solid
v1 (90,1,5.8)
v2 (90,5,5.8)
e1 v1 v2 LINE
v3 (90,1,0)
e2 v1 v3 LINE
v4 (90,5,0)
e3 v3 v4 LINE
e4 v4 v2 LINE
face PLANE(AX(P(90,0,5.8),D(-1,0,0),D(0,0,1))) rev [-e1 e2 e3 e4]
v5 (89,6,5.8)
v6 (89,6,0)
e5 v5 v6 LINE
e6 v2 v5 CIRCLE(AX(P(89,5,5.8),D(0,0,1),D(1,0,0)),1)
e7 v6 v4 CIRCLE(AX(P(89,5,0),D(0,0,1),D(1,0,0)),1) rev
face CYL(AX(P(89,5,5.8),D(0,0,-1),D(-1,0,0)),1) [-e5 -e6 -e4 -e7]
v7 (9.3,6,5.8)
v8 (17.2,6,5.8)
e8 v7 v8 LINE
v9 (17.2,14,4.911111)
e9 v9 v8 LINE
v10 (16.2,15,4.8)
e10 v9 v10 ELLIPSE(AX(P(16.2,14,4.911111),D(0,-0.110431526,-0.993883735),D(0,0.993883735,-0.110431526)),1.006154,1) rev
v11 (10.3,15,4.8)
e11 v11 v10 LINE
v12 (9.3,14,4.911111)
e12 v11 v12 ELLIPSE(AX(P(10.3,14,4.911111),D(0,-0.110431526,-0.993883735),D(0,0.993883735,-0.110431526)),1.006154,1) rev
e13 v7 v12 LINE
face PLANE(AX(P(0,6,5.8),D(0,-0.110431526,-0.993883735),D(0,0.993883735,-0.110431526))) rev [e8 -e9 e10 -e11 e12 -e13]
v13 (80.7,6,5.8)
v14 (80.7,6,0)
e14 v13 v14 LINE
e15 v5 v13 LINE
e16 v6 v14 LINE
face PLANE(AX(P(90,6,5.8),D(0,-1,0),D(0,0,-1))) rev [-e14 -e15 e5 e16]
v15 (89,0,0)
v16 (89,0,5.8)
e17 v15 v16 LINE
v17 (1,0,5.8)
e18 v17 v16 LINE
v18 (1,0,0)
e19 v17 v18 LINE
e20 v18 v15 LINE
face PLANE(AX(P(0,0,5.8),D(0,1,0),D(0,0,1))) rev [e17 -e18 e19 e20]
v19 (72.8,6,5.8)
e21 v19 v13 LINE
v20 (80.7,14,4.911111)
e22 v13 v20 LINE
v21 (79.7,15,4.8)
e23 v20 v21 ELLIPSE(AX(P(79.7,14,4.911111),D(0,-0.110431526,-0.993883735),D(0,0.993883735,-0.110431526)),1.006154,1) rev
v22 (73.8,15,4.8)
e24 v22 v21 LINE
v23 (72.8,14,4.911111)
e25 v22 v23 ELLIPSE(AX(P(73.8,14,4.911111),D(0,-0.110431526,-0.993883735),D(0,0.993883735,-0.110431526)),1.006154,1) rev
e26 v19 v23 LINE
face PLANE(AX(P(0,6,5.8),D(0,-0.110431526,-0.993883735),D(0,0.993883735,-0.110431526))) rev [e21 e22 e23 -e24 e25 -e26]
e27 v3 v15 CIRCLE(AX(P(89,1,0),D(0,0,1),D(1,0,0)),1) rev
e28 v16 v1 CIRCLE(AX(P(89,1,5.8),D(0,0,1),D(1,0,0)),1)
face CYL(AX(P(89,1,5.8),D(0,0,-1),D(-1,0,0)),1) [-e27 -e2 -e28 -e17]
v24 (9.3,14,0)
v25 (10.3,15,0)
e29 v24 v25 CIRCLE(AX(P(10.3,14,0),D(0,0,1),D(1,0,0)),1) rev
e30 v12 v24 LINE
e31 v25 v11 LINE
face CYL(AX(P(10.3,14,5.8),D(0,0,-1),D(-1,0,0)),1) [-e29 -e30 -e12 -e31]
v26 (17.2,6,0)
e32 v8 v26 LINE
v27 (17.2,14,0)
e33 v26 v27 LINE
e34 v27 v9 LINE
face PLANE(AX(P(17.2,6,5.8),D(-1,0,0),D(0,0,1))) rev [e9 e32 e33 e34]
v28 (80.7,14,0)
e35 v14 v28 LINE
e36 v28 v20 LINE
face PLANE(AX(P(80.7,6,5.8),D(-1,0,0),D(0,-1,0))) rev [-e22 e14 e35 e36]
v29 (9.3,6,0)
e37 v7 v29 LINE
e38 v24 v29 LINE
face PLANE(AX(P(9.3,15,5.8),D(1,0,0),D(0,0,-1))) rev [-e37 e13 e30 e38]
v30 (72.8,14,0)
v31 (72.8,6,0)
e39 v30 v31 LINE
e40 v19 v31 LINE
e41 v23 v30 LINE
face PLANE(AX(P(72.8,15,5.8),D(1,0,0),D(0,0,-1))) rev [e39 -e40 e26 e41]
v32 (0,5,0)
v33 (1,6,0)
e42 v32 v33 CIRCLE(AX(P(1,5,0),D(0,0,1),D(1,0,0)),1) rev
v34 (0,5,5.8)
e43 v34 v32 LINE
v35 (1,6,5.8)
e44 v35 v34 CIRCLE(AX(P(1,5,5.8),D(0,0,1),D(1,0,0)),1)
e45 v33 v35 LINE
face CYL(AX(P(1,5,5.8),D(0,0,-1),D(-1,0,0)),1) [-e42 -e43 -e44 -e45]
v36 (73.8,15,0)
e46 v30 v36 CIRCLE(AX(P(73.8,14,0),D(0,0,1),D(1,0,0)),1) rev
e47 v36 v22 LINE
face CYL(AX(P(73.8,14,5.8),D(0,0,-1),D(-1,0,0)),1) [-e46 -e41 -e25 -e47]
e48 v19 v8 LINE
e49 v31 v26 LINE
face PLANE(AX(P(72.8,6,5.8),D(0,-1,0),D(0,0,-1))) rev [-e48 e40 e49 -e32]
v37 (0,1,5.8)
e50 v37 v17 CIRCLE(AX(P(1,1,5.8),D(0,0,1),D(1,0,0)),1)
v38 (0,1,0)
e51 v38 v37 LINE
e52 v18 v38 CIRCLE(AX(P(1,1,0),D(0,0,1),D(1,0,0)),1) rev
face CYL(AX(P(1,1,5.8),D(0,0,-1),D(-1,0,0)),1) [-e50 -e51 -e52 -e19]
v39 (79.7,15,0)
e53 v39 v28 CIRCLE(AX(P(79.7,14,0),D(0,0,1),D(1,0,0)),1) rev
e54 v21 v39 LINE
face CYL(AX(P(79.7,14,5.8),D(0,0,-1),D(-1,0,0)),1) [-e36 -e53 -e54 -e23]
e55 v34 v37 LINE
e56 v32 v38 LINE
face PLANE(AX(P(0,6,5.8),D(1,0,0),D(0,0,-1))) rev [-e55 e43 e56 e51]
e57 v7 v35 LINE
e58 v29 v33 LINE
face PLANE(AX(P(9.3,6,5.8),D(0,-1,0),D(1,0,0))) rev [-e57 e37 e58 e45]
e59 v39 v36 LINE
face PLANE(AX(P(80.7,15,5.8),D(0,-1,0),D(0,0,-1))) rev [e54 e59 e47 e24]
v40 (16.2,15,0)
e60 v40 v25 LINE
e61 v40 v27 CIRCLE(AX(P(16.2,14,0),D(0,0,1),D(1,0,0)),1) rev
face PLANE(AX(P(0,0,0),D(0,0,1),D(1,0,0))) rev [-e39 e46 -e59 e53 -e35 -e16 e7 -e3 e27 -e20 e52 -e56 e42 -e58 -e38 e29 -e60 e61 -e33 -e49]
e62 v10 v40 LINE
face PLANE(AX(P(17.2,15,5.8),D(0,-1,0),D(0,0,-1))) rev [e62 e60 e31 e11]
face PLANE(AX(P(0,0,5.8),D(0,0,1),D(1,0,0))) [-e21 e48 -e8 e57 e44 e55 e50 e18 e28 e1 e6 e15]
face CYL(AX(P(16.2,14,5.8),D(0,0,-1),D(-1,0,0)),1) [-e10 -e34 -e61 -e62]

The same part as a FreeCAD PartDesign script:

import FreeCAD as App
import Part
import Sketcher

V = App.Vector
Q = App.Units.Quantity


def edges_at(feature, points):
    """Names of the edges that pass closest to the given points."""
    edges = feature.Shape.Edges
    near = lambda p: min(range(len(edges)), key=lambda i: edges[i].distToShape(Part.Vertex(*p))[0])
    return sorted({f"Edge{near(p) + 1}" for p in points})


def add_polygon(sketch, points):
    """Adds a closed chain of lines whose ends are joined by coincident constraints."""
    first, n = sketch.GeometryCount, len(points)
    for a, b in zip(points, points[1:] + points[:1]):
        sketch.addGeometry(Part.LineSegment(App.Vector(*a, 0), App.Vector(*b, 0)), False)
    for i in range(n):
        sketch.addConstraint(Sketcher.Constraint("Coincident", first + i, 2, first + (i + 1) % n, 1))

doc = App.newDocument("Part")
body = doc.addObject("PartDesign::Body", "Body")

sketch1 = body.newObject("Sketcher::SketchObject", "Sketch")
sketch1.AttachmentSupport = (doc.getObject("XY_Plane"), [""])
sketch1.MapMode = "FlatFace"
add_polygon(sketch1, [(0, 0), (90, 0), (90, 6), (81, 6), (81, 15), (73, 15), (73, 6), (17, 6), (17, 15), (9, 15), (9, 6), (0, 6)])
sketch1.addConstraint([
    Sketcher.Constraint("Horizontal", 0),
    Sketcher.Constraint("Vertical", 1),
    Sketcher.Constraint("Horizontal", 2),
    Sketcher.Constraint("Vertical", 3),
    Sketcher.Constraint("Horizontal", 4),
    Sketcher.Constraint("Vertical", 5),
    Sketcher.Constraint("Horizontal", 6),
    Sketcher.Constraint("Vertical", 7),
    Sketcher.Constraint("Horizontal", 8),
    Sketcher.Constraint("Vertical", 9),
    Sketcher.Constraint("Horizontal", 10),
    Sketcher.Constraint("Vertical", 11),
    Sketcher.Constraint("Coincident", 11, 2, -1, 1),
    Sketcher.Constraint("Horizontal", 2, 2, 5, 2),
    Sketcher.Constraint("Horizontal", 4, 2, 7, 2),
    Sketcher.Constraint("Horizontal", 6, 2, 9, 2),
    Sketcher.Constraint("Equal", 4, 8),
    Sketcher.Constraint("Equal", 2, 10),
    Sketcher.Constraint("DistanceX", 0, 1, 0, 2, Q("90 mm")),
    Sketcher.Constraint("DistanceY", 1, 1, 1, 2, Q("6 mm")),
    Sketcher.Constraint("DistanceY", 3, 1, 3, 2, Q("9 mm")),
    Sketcher.Constraint("DistanceX", 2, 2, 2, 1, Q("9.3 mm")),
    Sketcher.Constraint("DistanceX", 4, 2, 4, 1, Q("7.9 mm")),
])
pad1 = body.newObject("PartDesign::Pad", "Pad")
pad1.Profile = sketch1
pad1.Length = 5.8

sketch2 = body.newObject("Sketcher::SketchObject", "Sketch001")
sketch2.AttachmentSupport = (doc.getObject("YZ_Plane"), [""])
sketch2.MapMode = "FlatFace"
sketch2.AttachmentOffset = App.Placement(V(0, 0, 80.7), App.Rotation())
add_polygon(sketch2, [(15, 5.8), (6, 5.8), (15, 4.8)])
sketch2.addConstraint([
    Sketcher.Constraint("Horizontal", 0),
    Sketcher.Constraint("Vertical", 2),
    Sketcher.Constraint("DistanceX", 0, 2, 0, 1, Q("9 mm")),
    Sketcher.Constraint("DistanceY", 2, 1, 2, 2, Q("1 mm")),
    Sketcher.Constraint("DistanceX", -1, 1, 0, 2, Q("6 mm")),
    Sketcher.Constraint("DistanceY", -1, 1, 0, 2, Q("5.8 mm")),
])
pocket1 = body.newObject("PartDesign::Pocket", "Pocket")
pocket1.Profile = sketch2
pocket1.Type = "ThroughAll"
doc.recompute()

fillet = body.newObject("PartDesign::Fillet", "Fillet")
fillet.Base = (pocket1, edges_at(pocket1, [
    (0, 6, 2.9),
    (90, 6, 2.9),
    (90, 0, 2.9),
    (0, 0, 2.9),
    (9.3, 15, 2.4),
    (17.2, 15, 2.4),
    (72.8, 15, 2.4),
    (80.7, 15, 2.4),
]))
fillet.Radius = 1

doc.recompute()
